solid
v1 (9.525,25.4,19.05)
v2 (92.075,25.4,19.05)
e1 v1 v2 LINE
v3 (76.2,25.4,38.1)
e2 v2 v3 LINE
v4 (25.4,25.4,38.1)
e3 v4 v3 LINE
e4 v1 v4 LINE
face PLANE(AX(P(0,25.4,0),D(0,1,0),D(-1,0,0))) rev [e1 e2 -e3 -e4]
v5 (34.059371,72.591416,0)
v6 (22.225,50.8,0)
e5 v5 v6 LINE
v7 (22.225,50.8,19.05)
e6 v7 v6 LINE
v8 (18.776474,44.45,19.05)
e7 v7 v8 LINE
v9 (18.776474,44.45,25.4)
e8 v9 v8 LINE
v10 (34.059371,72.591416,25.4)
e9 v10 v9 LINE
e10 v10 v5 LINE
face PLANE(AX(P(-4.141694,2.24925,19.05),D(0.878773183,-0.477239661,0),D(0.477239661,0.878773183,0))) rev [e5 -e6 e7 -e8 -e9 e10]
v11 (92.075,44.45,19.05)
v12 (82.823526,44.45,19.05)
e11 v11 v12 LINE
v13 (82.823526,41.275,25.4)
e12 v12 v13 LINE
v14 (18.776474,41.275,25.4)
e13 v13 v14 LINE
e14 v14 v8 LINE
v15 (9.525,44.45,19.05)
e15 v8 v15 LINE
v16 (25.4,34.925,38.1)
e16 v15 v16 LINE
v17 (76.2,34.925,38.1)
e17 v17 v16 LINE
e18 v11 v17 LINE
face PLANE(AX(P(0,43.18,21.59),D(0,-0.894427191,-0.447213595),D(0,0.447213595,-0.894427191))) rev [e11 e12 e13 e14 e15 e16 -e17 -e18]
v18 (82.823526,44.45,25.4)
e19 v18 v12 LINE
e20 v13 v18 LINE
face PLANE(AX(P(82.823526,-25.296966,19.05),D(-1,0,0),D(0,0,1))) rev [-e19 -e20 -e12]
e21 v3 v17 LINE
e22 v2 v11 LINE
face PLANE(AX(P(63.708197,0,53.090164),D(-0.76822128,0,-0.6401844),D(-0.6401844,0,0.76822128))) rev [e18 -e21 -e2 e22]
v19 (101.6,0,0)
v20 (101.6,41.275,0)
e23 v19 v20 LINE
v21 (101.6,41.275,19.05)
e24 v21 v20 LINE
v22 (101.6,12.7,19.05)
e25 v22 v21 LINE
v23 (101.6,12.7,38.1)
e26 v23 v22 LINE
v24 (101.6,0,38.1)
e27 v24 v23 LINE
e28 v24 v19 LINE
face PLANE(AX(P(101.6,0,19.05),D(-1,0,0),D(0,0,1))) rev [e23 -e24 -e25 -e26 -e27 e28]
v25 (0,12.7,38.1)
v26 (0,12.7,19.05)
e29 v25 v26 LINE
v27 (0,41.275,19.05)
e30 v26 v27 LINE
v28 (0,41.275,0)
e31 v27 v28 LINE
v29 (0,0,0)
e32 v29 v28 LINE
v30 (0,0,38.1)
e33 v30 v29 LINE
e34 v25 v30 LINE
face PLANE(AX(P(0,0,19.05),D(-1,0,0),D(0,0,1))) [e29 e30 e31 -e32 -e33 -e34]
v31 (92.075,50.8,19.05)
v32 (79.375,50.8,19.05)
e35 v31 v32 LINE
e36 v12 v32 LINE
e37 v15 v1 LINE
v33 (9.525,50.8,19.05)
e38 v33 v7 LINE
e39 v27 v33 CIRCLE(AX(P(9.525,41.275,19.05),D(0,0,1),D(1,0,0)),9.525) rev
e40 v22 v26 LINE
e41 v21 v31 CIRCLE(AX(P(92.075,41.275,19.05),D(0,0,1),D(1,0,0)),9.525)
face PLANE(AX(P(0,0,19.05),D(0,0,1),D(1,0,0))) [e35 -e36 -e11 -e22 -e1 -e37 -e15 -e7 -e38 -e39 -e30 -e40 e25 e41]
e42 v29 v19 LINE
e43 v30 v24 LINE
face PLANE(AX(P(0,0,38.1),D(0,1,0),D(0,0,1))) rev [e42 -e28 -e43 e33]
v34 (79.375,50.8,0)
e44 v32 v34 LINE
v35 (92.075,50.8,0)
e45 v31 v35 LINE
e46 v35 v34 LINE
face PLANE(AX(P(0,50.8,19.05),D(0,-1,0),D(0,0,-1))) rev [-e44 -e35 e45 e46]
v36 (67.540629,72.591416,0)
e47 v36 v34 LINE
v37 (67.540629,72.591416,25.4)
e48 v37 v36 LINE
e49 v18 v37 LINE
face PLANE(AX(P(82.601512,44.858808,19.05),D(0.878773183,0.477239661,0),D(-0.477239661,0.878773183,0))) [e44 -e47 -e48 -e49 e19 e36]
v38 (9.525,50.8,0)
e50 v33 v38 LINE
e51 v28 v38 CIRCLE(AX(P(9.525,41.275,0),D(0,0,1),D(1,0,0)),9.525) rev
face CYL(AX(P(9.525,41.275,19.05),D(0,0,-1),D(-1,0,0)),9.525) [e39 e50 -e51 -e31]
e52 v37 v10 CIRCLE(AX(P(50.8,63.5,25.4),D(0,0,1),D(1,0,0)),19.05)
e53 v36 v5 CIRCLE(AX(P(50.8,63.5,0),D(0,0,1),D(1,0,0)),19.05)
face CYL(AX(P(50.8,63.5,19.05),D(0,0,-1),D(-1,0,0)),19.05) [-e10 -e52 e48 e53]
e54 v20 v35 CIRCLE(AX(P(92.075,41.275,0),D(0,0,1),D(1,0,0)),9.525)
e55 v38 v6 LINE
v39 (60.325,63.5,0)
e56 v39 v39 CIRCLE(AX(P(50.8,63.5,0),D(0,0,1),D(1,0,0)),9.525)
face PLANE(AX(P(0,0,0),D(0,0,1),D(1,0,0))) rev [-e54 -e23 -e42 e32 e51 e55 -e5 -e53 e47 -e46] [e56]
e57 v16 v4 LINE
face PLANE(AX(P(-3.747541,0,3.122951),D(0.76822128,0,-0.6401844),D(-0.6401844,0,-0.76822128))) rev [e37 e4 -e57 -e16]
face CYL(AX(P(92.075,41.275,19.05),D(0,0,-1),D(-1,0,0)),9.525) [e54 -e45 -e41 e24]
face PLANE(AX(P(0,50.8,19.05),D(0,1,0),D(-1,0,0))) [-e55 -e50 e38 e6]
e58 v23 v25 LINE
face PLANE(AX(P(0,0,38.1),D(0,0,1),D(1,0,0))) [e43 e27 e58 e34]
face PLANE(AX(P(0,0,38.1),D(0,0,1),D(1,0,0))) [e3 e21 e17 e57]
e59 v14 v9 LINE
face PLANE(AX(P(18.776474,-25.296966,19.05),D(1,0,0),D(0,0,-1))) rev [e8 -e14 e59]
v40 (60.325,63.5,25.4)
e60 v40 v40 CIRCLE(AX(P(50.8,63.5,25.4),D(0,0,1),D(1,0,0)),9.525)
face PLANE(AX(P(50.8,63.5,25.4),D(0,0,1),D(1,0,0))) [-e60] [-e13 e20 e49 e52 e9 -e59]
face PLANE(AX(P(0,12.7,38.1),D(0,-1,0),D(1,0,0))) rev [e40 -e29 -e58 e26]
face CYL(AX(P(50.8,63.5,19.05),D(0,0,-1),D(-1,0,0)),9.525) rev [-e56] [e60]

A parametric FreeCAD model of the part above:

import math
import FreeCAD as App
import Part
import Sketcher
from FreeCAD import Vector
Q = App.Units.Quantity


def add_polygon(sketch, points):
    """Adds a closed chain of lines whose ends are joined by coincident constraints."""
    first, n = sketch.GeometryCount, len(points)
    for a, b in zip(points, points[1:] + points[:1]):
        sketch.addGeometry(Part.LineSegment(App.Vector(*a, 0), App.Vector(*b, 0)), False)
    for i in range(n):
        sketch.addConstraint(Sketcher.Constraint("Coincident", first + i, 2, first + (i + 1) % n, 1))

doc = App.newDocument("Part")
body = doc.addObject("PartDesign::Body", "Body")

# Sketch on XY plane
sketch1 = doc.addObject("Sketcher::SketchObject", "Sketch")
body.addObject(sketch1)
sketch1.AttachmentSupport = (doc.XY_Plane, [""])
sketch1.MapMode = "FlatFace"
sketch1.addGeometry([
    Part.LineSegment(Vector(0, 41.275, 0), Vector(0, 12.7, 0)),  # 0
    Part.LineSegment(Vector(0, 12.7, 0), Vector(101.6, 12.7, 0)),  # 1
    Part.LineSegment(Vector(101.6, 12.7, 0), Vector(101.6, 41.275, 0)),  # 2
    Part.ArcOfCircle(Part.Circle(Vector(92.075, 41.275, 0), Vector(0, 0, 1), 9.525), math.radians(0), math.radians(90)),  # 3
    Part.LineSegment(Vector(92.075, 50.8, 0), Vector(79.375, 50.8, 0)),  # 4
    Part.LineSegment(Vector(79.375, 50.8, 0), Vector(67.540629, 72.591416, 0)),  # 5
    Part.ArcOfCircle(Part.Circle(Vector(50.8, 63.5, 0), Vector(0, 0, 1), 19.05), math.radians(28.505275), math.radians(151.494725)),  # 6
    Part.LineSegment(Vector(34.059371, 72.591416, 0), Vector(22.225, 50.8, 0)),  # 7
    Part.LineSegment(Vector(22.225, 50.8, 0), Vector(9.525, 50.8, 0)),  # 8
    Part.ArcOfCircle(Part.Circle(Vector(9.525, 41.275, 0), Vector(0, 0, 1), 9.525), math.radians(90), math.radians(180)),  # 9
    Part.Circle(Vector(50.8, 63.5, 0), Vector(0, 0, 1), 9.525),  # 10
], False)
sketch1.addConstraint([
    Sketcher.Constraint("Coincident", 0, 2, 1, 1),
    Sketcher.Constraint("Coincident", 1, 2, 2, 1),
    Sketcher.Constraint("Tangent", 2, 2, 3, 1),
    Sketcher.Constraint("Tangent", 3, 2, 4, 1),
    Sketcher.Constraint("Coincident", 4, 2, 5, 1),
    Sketcher.Constraint("Tangent", 5, 2, 6, 1),
    Sketcher.Constraint("Tangent", 6, 2, 7, 1),
    Sketcher.Constraint("Coincident", 7, 2, 8, 1),
    Sketcher.Constraint("Tangent", 8, 2, 9, 1),
    Sketcher.Constraint("Tangent", 9, 2, 0, 1),
    Sketcher.Constraint("Vertical", 0),
    Sketcher.Constraint("Horizontal", 1),
    Sketcher.Constraint("Vertical", 2),
    Sketcher.Constraint("Horizontal", 4),
    Sketcher.Constraint("Horizontal", 8),
    Sketcher.Constraint("Coincident", 10, 3, 6, 3),
    Sketcher.Constraint("Equal", 3, 9),
    Sketcher.Constraint("Equal", 9, 10),
    Sketcher.Constraint("PointOnObject", 0, 2, -2),
    Sketcher.Constraint("Horizontal", 3, 3, 9, 3),
    Sketcher.Constraint("Horizontal", 5, 2, 6, 2),
    Sketcher.Constraint("Equal", 4, 8),
    Sketcher.Constraint("Diameter", 10, Q("0.75 in")),
    Sketcher.Constraint("DistanceX", 1, 1, 1, 2, Q("4 in")),
    Sketcher.Constraint("Radius", 6, Q("0.75 in")),
    Sketcher.Constraint("DistanceX", 4, 2, 4, 1, Q("0.5 in")),
    Sketcher.Constraint("DistanceY", -1, 1, 3, 2, Q("2 in")),
    Sketcher.Constraint("DistanceY", 0, 2, 6, 3, Q("2 in")),
    Sketcher.Constraint("DistanceY", -1, 1, 6, 3, Q("2.5 in")),
])
pad1 = doc.addObject("PartDesign::Pad", "Pad")
body.addObject(pad1)
pad1.Profile = sketch1
pad1.Length = Q("0.75 in")

# Sketch on XY plane
sketch2 = doc.addObject("Sketcher::SketchObject", "Sketch001")
body.addObject(sketch2)
sketch2.AttachmentSupport = (doc.XY_Plane, [""])
sketch2.MapMode = "FlatFace"
add_polygon(sketch2, [(0, 12.7), (0, 0), (101.6, 0), (101.6, 12.7)])  # lines 0-3
sketch2.addConstraint([
    Sketcher.Constraint("Vertical", 0),
    Sketcher.Constraint("Horizontal", 1),
    Sketcher.Constraint("Vertical", 2),
    Sketcher.Constraint("Horizontal", 3),
    Sketcher.Constraint("Coincident", 0, 2, -1, 1),
    Sketcher.Constraint("DistanceX", 1, 1, 1, 2, Q("4 in")),
    Sketcher.Constraint("DistanceY", 0, 2, 0, 1, Q("0.5 in")),
])
pad2 = doc.addObject("PartDesign::Pad", "Pad001")
body.addObject(pad2)
pad2.Profile = sketch2
pad2.Length = Q("1.5 in")

# Sketch on XY plane
sketch3 = doc.addObject("Sketcher::SketchObject", "Sketch002")
body.addObject(sketch3)
sketch3.AttachmentSupport = (doc.XY_Plane, [""])
sketch3.MapMode = "FlatFace"
sketch3.AttachmentOffset = App.Placement(Vector(0, 0, 0.75 * 25.4), App.Rotation())
add_polygon(sketch3, [(9.525, 44.45), (9.525, 25.4), (92.075, 25.4), (92.075, 44.45)])  # lines 0-3
sketch3.addConstraint([
    Sketcher.Constraint("Vertical", 0),
    Sketcher.Constraint("Horizontal", 1),
    Sketcher.Constraint("Vertical", 2),
    Sketcher.Constraint("Horizontal", 3),
    Sketcher.Constraint("DistanceY", -1, 1, 0, 2, Q("1 in")),
    Sketcher.Constraint("DistanceX", 1, 1, 1, 2, Q("3.25 in")),
    Sketcher.Constraint("DistanceY", 0, 2, 0, 1, Q("0.75 in")),
    Sketcher.Constraint("DistanceX", -1, 1, 0, 2, Q("0.375 in")),
])

# Sketch on XY plane
sketch4 = doc.addObject("Sketcher::SketchObject", "Sketch003")
body.addObject(sketch4)
sketch4.AttachmentSupport = (doc.XY_Plane, [""])
sketch4.MapMode = "FlatFace"
sketch4.AttachmentOffset = App.Placement(Vector(0, 0, 1.5 * 25.4), App.Rotation())
add_polygon(sketch4, [(25.4, 34.925), (25.4, 25.4), (76.2, 25.4), (76.2, 34.925)])  # lines 0-3
sketch4.addConstraint([
    Sketcher.Constraint("Vertical", 0),
    Sketcher.Constraint("Horizontal", 1),
    Sketcher.Constraint("Vertical", 2),
    Sketcher.Constraint("Horizontal", 3),
    Sketcher.Constraint("DistanceX", 1, 1, 1, 2, Q("2 in")),
    Sketcher.Constraint("DistanceX", -1, 1, 0, 2, Q("1 in")),
    Sketcher.Constraint("DistanceY", -1, 1, 0, 2, Q("1 in")),
    Sketcher.Constraint("DistanceY", 0, 2, 0, 1, Q("0.375 in")),
])

additiveloft = doc.addObject("PartDesign::AdditiveLoft", "AdditiveLoft")
body.addObject(additiveloft)
additiveloft.Profile = sketch3
additiveloft.Sections = [sketch4]

# Sketch on XY plane
sketch5 = doc.addObject("Sketcher::SketchObject", "Sketch004")
body.addObject(sketch5)
sketch5.AttachmentSupport = (doc.XY_Plane, [""])
sketch5.MapMode = "FlatFace"
sketch5.AttachmentOffset = App.Placement(Vector(0, 0, 0.75 * 25.4), App.Rotation())
sketch5.addGeometry([
    Part.LineSegment(Vector(34.059371, 72.591416, 0), Vector(18.776474, 44.45, 0)),  # 0
    Part.LineSegment(Vector(18.776474, 44.45, 0), Vector(82.823526, 44.45, 0)),  # 1
    Part.LineSegment(Vector(82.823526, 44.45, 0), Vector(67.540629, 72.591416, 0)),  # 2
    Part.ArcOfCircle(Part.Circle(Vector(50.8, 63.5, 0), Vector(0, 0, 1), 19.05), math.radians(28.505275), math.radians(151.494725)),  # 3
    Part.Circle(Vector(50.8, 63.5, 0), Vector(0, 0, 1), 9.525),  # 4
], False)
sketch5.addConstraint([
    Sketcher.Constraint("Coincident", 0, 2, 1, 1),
    Sketcher.Constraint("Coincident", 1, 2, 2, 1),
    Sketcher.Constraint("Tangent", 2, 2, 3, 1),
    Sketcher.Constraint("Tangent", 3, 2, 0, 1),
    Sketcher.Constraint("Horizontal", 1),
    Sketcher.Constraint("Coincident", 4, 3, 3, 3),
    Sketcher.Constraint("Horizontal", 2, 2, 3, 2),
    Sketcher.Constraint("Diameter", 4, Q("0.75 in")),
    Sketcher.Constraint("Radius", 3, Q("0.75 in")),
    Sketcher.Constraint("DistanceX", -1, 1, 3, 3, Q("2 in")),
    Sketcher.Constraint("DistanceY", -1, 1, 3, 3, Q("2.5 in")),
    Sketcher.Constraint("DistanceY", -1, 1, 0, 2, Q("1.75 in")),
    Sketcher.Constraint("DistanceX", 1, 1, 1, 2, 64.047051),
])
pad3 = doc.addObject("PartDesign::Pad", "Pad002")
body.addObject(pad3)
pad3.Profile = sketch5
pad3.Length = Q("0.25 in")

# Sketch on XZ plane
sketch6 = doc.addObject("Sketcher::SketchObject", "Sketch005")
body.addObject(sketch6)
sketch6.AttachmentSupport = (doc.XZ_Plane, [""])
sketch6.MapMode = "FlatFace"
sketch6.AttachmentOffset = App.Placement(Vector(0, 0, -1.75 * 25.4), App.Rotation())
add_polygon(sketch6, [(18.776474, 25.4), (18.776474, 19.05), (82.823526, 19.05), (82.823526, 25.4)])  # lines 0-3
sketch6.addConstraint([
    Sketcher.Constraint("Vertical", 0),
    Sketcher.Constraint("Horizontal", 1),
    Sketcher.Constraint("Vertical", 2),
    Sketcher.Constraint("Horizontal", 3),
    Sketcher.Constraint("DistanceY", -1, 1, 2, 2, Q("1 in")),
    Sketcher.Constraint("DistanceY", 0, 2, 0, 1, Q("0.25 in")),
    Sketcher.Constraint("DistanceX", 1, 1, 1, 2, 64.047051),
    Sketcher.Constraint("DistanceX", -1, 1, 0, 2, 18.776474),
])
pad4 = doc.addObject("PartDesign::Pad", "Pad003")
body.addObject(pad4)
pad4.Profile = sketch6
pad4.Length = Q("0.125 in")

doc.recompute()
